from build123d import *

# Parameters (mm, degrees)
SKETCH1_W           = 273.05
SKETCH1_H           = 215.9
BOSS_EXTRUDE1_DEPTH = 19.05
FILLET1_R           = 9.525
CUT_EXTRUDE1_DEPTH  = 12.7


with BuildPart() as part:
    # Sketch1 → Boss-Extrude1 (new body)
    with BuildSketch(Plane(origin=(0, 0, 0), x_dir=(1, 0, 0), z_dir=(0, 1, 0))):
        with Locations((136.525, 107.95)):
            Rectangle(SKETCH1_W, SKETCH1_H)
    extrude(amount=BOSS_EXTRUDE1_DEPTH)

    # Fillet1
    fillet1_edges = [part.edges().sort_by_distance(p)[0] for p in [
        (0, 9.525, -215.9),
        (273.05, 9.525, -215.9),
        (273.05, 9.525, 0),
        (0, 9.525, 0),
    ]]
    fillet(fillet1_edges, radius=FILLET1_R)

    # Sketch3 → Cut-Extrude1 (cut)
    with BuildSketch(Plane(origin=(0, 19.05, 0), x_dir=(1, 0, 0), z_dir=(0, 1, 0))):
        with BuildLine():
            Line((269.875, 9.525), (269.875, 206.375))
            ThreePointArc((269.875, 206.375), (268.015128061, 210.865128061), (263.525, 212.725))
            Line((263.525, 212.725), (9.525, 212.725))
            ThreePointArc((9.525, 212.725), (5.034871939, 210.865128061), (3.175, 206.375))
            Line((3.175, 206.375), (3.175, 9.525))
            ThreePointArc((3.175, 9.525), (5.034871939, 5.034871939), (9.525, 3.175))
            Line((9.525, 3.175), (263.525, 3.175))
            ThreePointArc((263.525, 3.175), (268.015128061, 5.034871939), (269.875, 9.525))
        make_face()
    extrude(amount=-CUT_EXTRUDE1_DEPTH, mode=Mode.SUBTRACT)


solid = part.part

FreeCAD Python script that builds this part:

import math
import FreeCAD as App
import Part
import Sketcher
from FreeCAD import Vector
Q = App.Units.Quantity


def edges_at(feature, points):
    """Names of the edges that pass closest to the given points."""
    edges = feature.Shape.Edges
    near = lambda p: min(range(len(edges)), key=lambda i: edges[i].distToShape(Part.Vertex(*p))[0])
    return sorted({f"Edge{near(p) + 1}" for p in points})

doc = App.newDocument("Part")
body = doc.addObject("PartDesign::Body", "Body")

# Sketch on XZ plane
sketch1 = body.newObject("Sketcher::SketchObject", "Sketch")
sketch1.AttachmentSupport = (doc.getObject("XZ_Plane"), [""])
sketch1.MapMode = "FlatFace"
sketch1.addGeometry([
    Part.LineSegment(Vector(0, -216, 0), Vector(0, 0, 0)),
    Part.LineSegment(Vector(0, 0, 0), Vector(273, 0, 0)),
    Part.LineSegment(Vector(273, 0, 0), Vector(273, -216, 0)),
    Part.LineSegment(Vector(273, -216, 0), Vector(0, -216, 0)),
], False)
sketch1.addConstraint([
    Sketcher.Constraint("Coincident", 0, 2, 1, 1),
    Sketcher.Constraint("Coincident", 1, 2, 2, 1),
    Sketcher.Constraint("Coincident", 2, 2, 3, 1),
    Sketcher.Constraint("Coincident", 3, 2, 0, 1),
    Sketcher.Constraint("Vertical", 0),
    Sketcher.Constraint("Horizontal", 1),
    Sketcher.Constraint("Vertical", 2),
    Sketcher.Constraint("Horizontal", 3),
    Sketcher.Constraint("Coincident", 0, 2, -1, 1),
    Sketcher.Constraint("DistanceY", 0, 1, 0, 2, Q("8.5 in")),
    Sketcher.Constraint("DistanceX", 1, 1, 1, 2, Q("10.75 in")),
])
pad1 = body.newObject("PartDesign::Pad", "Pad")
pad1.Profile = sketch1
pad1.Length = Q("0.75 in")
pad1.Reversed = True
doc.recompute()

fillet = body.newObject("PartDesign::Fillet", "Fillet")
fillet.Base = (pad1, edges_at(pad1, [
    (0, 9.525, -215.9),
    (273.05, 9.525, -215.9),
    (273.05, 9.525, 0),
    (0, 9.525, 0),
]))
fillet.Radius = Q("0.375 in")

# Sketch on XZ plane
sketch2 = body.newObject("Sketcher::SketchObject", "Sketch001")
sketch2.AttachmentSupport = (doc.getObject("XZ_Plane"), [""])
sketch2.MapMode = "FlatFace"
sketch2.AttachmentOffset = App.Placement(Vector(0, 0, -0.75 * 25.4), App.Rotation())
sketch2.addGeometry([
    Part.LineSegment(Vector(270, -10, 0), Vector(270, -206, 0)),  # 0
    Part.ArcOfCircle(Part.Circle(Vector(264, -206, 0), Vector(0, 0, 1), 6), math.radians(-90), math.radians(0)),  # 1
    Part.LineSegment(Vector(264, -213, 0), Vector(10, -213, 0)),  # 2
    Part.ArcOfCircle(Part.Circle(Vector(10, -206, 0), Vector(0, 0, 1), 6), math.radians(180), math.radians(270)),  # 3
    Part.LineSegment(Vector(3, -206, 0), Vector(3, -10, 0)),  # 4
    Part.ArcOfCircle(Part.Circle(Vector(10, -10, 0), Vector(0, 0, 1), 6), math.radians(90), math.radians(180)),  # 5
    Part.LineSegment(Vector(10, -3, 0), Vector(264, -3, 0)),  # 6
    Part.ArcOfCircle(Part.Circle(Vector(264, -10, 0), Vector(0, 0, 1), 6), math.radians(0), math.radians(90)),  # 7
], False)
sketch2.addConstraint([
    Sketcher.Constraint("Tangent", 0, 2, 1, 2),
    Sketcher.Constraint("Tangent", 1, 1, 2, 1),
    Sketcher.Constraint("Tangent", 2, 2, 3, 2),
    Sketcher.Constraint("Tangent", 3, 1, 4, 1),
    Sketcher.Constraint("Tangent", 4, 2, 5, 2),
    Sketcher.Constraint("Tangent", 5, 1, 6, 1),
    Sketcher.Constraint("Tangent", 6, 2, 7, 2),
    Sketcher.Constraint("Tangent", 7, 1, 0, 1),
    Sketcher.Constraint("Vertical", 0),
    Sketcher.Constraint("Horizontal", 2),
    Sketcher.Constraint("Vertical", 4),
    Sketcher.Constraint("Horizontal", 6),
    Sketcher.Constraint("Equal", 1, 3),
    Sketcher.Constraint("Equal", 3, 5),
    Sketcher.Constraint("Equal", 5, 7),
    Sketcher.Constraint("DistanceX", 2, 2, 2, 1, Q("10 in")),
    Sketcher.Constraint("Radius", 1, Q("0.25 in")),
    Sketcher.Constraint("DistanceY", 1, 1, 7, 3, Q("8 in")),
    Sketcher.Constraint("DistanceX", -1, 1, 1, 3, Q("10.375 in")),
    Sketcher.Constraint("DistanceY", 1, 3, -1, 1, Q("8.125 in")),
])
pocket1 = body.newObject("PartDesign::Pocket", "Pocket")
pocket1.Profile = sketch2
pocket1.Length = Q("0.5 in")
pocket1.Reversed = True

doc.recompute()
